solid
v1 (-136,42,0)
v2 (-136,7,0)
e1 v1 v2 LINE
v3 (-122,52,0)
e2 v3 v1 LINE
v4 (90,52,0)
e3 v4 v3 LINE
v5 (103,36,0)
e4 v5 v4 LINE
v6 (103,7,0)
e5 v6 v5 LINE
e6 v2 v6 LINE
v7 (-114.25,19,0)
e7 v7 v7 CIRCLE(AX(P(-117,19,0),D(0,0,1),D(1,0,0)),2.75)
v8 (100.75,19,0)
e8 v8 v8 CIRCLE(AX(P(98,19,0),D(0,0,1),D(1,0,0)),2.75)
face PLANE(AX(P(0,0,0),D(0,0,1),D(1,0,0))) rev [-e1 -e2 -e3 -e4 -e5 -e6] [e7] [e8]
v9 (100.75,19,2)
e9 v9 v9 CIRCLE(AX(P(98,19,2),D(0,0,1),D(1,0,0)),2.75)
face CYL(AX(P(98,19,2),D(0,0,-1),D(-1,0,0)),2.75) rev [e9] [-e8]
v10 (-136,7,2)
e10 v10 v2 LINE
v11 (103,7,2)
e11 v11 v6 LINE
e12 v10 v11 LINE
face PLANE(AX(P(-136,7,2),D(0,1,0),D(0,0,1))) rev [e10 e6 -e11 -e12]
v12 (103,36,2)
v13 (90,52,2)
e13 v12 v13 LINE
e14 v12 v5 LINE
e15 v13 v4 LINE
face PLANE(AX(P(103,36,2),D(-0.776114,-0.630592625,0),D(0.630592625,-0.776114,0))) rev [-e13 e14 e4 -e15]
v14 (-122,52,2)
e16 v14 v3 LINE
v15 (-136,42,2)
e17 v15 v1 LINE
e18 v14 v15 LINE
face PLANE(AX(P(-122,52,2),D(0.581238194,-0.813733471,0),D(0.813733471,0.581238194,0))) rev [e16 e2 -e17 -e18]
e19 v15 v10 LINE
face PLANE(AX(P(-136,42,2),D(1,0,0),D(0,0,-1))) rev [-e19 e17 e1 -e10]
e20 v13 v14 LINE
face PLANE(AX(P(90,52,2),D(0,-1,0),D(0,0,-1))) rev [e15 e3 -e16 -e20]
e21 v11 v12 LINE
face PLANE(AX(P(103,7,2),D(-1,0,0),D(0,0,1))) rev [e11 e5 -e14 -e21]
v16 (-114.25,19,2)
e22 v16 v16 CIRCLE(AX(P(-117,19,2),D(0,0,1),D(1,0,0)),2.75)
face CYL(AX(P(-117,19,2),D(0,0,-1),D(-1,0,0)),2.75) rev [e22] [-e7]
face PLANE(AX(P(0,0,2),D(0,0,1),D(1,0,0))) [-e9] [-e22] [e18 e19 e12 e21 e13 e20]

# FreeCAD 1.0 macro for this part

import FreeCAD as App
import Part
import Sketcher
from FreeCAD import Vector
Q = App.Units.Quantity

doc = App.newDocument("Part")
body = doc.addObject("PartDesign::Body", "Body")

# Sketch on XY plane
sketch1 = body.newObject("Sketcher::SketchObject", "Sketch")
sketch1.AttachmentSupport = (doc.getObject("XY_Plane"), [""])
sketch1.MapMode = "FlatFace"
sketch1.addGeometry([
    Part.LineSegment(Vector(-136, 7, 0), Vector(103, 7, 0)),  # 0
    Part.LineSegment(Vector(103, 7, 0), Vector(103, 36, 0)),  # 1
    Part.LineSegment(Vector(103, 36, 0), Vector(90, 52, 0)),  # 2
    Part.LineSegment(Vector(90, 52, 0), Vector(-122, 52, 0)),  # 3
    Part.LineSegment(Vector(-122, 52, 0), Vector(-136, 42, 0)),  # 4
    Part.LineSegment(Vector(-136, 42, 0), Vector(-136, 7, 0)),  # 5
    Part.Circle(Vector(-117, 19, 0), Vector(0, 0, 1), 2.8),  # 6
    Part.Circle(Vector(98, 19, 0), Vector(0, 0, 1), 2.8),  # 7
], False)
sketch1.addConstraint([
    Sketcher.Constraint("Coincident", 0, 2, 1, 1),
    Sketcher.Constraint("Coincident", 1, 2, 2, 1),
    Sketcher.Constraint("Coincident", 2, 2, 3, 1),
    Sketcher.Constraint("Coincident", 3, 2, 4, 1),
    Sketcher.Constraint("Coincident", 4, 2, 5, 1),
    Sketcher.Constraint("Coincident", 5, 2, 0, 1),
    Sketcher.Constraint("Horizontal", 0),
    Sketcher.Constraint("Vertical", 1),
    Sketcher.Constraint("Horizontal", 3),
    Sketcher.Constraint("Vertical", 5),
    Sketcher.Constraint("Equal", 6, 7),
    Sketcher.Constraint("Horizontal", 6, 3, 7, 3),
    Sketcher.Constraint("Diameter", 6, Q("5.5 mm")),
    Sketcher.Constraint("DistanceX", 0, 1, 0, 2, Q("239 mm")),
    Sketcher.Constraint("DistanceX", 3, 2, 3, 1, Q("212 mm")),
    Sketcher.Constraint("DistanceY", 1, 1, 1, 2, Q("29 mm")),
    Sketcher.Constraint("DistanceY", 5, 2, 5, 1, Q("35 mm")),
    Sketcher.Constraint("DistanceX", 6, 3, -1, 1, Q("117 mm")),
    Sketcher.Constraint("DistanceY", -1, 1, 6, 3, Q("19 mm")),
    Sketcher.Constraint("DistanceX", -1, 1, 7, 3, Q("98 mm")),
    Sketcher.Constraint("DistanceX", -1, 1, 0, 2, Q("103 mm")),
    Sketcher.Constraint("DistanceY", -1, 1, 0, 2, Q("7 mm")),
    Sketcher.Constraint("DistanceX", -1, 1, 2, 2, Q("90 mm")),
    Sketcher.Constraint("DistanceY", -1, 1, 2, 2, Q("52 mm")),
])
pad1 = body.newObject("PartDesign::Pad", "Pad")
pad1.Profile = sketch1
pad1.Length = 2

doc.recompute()
